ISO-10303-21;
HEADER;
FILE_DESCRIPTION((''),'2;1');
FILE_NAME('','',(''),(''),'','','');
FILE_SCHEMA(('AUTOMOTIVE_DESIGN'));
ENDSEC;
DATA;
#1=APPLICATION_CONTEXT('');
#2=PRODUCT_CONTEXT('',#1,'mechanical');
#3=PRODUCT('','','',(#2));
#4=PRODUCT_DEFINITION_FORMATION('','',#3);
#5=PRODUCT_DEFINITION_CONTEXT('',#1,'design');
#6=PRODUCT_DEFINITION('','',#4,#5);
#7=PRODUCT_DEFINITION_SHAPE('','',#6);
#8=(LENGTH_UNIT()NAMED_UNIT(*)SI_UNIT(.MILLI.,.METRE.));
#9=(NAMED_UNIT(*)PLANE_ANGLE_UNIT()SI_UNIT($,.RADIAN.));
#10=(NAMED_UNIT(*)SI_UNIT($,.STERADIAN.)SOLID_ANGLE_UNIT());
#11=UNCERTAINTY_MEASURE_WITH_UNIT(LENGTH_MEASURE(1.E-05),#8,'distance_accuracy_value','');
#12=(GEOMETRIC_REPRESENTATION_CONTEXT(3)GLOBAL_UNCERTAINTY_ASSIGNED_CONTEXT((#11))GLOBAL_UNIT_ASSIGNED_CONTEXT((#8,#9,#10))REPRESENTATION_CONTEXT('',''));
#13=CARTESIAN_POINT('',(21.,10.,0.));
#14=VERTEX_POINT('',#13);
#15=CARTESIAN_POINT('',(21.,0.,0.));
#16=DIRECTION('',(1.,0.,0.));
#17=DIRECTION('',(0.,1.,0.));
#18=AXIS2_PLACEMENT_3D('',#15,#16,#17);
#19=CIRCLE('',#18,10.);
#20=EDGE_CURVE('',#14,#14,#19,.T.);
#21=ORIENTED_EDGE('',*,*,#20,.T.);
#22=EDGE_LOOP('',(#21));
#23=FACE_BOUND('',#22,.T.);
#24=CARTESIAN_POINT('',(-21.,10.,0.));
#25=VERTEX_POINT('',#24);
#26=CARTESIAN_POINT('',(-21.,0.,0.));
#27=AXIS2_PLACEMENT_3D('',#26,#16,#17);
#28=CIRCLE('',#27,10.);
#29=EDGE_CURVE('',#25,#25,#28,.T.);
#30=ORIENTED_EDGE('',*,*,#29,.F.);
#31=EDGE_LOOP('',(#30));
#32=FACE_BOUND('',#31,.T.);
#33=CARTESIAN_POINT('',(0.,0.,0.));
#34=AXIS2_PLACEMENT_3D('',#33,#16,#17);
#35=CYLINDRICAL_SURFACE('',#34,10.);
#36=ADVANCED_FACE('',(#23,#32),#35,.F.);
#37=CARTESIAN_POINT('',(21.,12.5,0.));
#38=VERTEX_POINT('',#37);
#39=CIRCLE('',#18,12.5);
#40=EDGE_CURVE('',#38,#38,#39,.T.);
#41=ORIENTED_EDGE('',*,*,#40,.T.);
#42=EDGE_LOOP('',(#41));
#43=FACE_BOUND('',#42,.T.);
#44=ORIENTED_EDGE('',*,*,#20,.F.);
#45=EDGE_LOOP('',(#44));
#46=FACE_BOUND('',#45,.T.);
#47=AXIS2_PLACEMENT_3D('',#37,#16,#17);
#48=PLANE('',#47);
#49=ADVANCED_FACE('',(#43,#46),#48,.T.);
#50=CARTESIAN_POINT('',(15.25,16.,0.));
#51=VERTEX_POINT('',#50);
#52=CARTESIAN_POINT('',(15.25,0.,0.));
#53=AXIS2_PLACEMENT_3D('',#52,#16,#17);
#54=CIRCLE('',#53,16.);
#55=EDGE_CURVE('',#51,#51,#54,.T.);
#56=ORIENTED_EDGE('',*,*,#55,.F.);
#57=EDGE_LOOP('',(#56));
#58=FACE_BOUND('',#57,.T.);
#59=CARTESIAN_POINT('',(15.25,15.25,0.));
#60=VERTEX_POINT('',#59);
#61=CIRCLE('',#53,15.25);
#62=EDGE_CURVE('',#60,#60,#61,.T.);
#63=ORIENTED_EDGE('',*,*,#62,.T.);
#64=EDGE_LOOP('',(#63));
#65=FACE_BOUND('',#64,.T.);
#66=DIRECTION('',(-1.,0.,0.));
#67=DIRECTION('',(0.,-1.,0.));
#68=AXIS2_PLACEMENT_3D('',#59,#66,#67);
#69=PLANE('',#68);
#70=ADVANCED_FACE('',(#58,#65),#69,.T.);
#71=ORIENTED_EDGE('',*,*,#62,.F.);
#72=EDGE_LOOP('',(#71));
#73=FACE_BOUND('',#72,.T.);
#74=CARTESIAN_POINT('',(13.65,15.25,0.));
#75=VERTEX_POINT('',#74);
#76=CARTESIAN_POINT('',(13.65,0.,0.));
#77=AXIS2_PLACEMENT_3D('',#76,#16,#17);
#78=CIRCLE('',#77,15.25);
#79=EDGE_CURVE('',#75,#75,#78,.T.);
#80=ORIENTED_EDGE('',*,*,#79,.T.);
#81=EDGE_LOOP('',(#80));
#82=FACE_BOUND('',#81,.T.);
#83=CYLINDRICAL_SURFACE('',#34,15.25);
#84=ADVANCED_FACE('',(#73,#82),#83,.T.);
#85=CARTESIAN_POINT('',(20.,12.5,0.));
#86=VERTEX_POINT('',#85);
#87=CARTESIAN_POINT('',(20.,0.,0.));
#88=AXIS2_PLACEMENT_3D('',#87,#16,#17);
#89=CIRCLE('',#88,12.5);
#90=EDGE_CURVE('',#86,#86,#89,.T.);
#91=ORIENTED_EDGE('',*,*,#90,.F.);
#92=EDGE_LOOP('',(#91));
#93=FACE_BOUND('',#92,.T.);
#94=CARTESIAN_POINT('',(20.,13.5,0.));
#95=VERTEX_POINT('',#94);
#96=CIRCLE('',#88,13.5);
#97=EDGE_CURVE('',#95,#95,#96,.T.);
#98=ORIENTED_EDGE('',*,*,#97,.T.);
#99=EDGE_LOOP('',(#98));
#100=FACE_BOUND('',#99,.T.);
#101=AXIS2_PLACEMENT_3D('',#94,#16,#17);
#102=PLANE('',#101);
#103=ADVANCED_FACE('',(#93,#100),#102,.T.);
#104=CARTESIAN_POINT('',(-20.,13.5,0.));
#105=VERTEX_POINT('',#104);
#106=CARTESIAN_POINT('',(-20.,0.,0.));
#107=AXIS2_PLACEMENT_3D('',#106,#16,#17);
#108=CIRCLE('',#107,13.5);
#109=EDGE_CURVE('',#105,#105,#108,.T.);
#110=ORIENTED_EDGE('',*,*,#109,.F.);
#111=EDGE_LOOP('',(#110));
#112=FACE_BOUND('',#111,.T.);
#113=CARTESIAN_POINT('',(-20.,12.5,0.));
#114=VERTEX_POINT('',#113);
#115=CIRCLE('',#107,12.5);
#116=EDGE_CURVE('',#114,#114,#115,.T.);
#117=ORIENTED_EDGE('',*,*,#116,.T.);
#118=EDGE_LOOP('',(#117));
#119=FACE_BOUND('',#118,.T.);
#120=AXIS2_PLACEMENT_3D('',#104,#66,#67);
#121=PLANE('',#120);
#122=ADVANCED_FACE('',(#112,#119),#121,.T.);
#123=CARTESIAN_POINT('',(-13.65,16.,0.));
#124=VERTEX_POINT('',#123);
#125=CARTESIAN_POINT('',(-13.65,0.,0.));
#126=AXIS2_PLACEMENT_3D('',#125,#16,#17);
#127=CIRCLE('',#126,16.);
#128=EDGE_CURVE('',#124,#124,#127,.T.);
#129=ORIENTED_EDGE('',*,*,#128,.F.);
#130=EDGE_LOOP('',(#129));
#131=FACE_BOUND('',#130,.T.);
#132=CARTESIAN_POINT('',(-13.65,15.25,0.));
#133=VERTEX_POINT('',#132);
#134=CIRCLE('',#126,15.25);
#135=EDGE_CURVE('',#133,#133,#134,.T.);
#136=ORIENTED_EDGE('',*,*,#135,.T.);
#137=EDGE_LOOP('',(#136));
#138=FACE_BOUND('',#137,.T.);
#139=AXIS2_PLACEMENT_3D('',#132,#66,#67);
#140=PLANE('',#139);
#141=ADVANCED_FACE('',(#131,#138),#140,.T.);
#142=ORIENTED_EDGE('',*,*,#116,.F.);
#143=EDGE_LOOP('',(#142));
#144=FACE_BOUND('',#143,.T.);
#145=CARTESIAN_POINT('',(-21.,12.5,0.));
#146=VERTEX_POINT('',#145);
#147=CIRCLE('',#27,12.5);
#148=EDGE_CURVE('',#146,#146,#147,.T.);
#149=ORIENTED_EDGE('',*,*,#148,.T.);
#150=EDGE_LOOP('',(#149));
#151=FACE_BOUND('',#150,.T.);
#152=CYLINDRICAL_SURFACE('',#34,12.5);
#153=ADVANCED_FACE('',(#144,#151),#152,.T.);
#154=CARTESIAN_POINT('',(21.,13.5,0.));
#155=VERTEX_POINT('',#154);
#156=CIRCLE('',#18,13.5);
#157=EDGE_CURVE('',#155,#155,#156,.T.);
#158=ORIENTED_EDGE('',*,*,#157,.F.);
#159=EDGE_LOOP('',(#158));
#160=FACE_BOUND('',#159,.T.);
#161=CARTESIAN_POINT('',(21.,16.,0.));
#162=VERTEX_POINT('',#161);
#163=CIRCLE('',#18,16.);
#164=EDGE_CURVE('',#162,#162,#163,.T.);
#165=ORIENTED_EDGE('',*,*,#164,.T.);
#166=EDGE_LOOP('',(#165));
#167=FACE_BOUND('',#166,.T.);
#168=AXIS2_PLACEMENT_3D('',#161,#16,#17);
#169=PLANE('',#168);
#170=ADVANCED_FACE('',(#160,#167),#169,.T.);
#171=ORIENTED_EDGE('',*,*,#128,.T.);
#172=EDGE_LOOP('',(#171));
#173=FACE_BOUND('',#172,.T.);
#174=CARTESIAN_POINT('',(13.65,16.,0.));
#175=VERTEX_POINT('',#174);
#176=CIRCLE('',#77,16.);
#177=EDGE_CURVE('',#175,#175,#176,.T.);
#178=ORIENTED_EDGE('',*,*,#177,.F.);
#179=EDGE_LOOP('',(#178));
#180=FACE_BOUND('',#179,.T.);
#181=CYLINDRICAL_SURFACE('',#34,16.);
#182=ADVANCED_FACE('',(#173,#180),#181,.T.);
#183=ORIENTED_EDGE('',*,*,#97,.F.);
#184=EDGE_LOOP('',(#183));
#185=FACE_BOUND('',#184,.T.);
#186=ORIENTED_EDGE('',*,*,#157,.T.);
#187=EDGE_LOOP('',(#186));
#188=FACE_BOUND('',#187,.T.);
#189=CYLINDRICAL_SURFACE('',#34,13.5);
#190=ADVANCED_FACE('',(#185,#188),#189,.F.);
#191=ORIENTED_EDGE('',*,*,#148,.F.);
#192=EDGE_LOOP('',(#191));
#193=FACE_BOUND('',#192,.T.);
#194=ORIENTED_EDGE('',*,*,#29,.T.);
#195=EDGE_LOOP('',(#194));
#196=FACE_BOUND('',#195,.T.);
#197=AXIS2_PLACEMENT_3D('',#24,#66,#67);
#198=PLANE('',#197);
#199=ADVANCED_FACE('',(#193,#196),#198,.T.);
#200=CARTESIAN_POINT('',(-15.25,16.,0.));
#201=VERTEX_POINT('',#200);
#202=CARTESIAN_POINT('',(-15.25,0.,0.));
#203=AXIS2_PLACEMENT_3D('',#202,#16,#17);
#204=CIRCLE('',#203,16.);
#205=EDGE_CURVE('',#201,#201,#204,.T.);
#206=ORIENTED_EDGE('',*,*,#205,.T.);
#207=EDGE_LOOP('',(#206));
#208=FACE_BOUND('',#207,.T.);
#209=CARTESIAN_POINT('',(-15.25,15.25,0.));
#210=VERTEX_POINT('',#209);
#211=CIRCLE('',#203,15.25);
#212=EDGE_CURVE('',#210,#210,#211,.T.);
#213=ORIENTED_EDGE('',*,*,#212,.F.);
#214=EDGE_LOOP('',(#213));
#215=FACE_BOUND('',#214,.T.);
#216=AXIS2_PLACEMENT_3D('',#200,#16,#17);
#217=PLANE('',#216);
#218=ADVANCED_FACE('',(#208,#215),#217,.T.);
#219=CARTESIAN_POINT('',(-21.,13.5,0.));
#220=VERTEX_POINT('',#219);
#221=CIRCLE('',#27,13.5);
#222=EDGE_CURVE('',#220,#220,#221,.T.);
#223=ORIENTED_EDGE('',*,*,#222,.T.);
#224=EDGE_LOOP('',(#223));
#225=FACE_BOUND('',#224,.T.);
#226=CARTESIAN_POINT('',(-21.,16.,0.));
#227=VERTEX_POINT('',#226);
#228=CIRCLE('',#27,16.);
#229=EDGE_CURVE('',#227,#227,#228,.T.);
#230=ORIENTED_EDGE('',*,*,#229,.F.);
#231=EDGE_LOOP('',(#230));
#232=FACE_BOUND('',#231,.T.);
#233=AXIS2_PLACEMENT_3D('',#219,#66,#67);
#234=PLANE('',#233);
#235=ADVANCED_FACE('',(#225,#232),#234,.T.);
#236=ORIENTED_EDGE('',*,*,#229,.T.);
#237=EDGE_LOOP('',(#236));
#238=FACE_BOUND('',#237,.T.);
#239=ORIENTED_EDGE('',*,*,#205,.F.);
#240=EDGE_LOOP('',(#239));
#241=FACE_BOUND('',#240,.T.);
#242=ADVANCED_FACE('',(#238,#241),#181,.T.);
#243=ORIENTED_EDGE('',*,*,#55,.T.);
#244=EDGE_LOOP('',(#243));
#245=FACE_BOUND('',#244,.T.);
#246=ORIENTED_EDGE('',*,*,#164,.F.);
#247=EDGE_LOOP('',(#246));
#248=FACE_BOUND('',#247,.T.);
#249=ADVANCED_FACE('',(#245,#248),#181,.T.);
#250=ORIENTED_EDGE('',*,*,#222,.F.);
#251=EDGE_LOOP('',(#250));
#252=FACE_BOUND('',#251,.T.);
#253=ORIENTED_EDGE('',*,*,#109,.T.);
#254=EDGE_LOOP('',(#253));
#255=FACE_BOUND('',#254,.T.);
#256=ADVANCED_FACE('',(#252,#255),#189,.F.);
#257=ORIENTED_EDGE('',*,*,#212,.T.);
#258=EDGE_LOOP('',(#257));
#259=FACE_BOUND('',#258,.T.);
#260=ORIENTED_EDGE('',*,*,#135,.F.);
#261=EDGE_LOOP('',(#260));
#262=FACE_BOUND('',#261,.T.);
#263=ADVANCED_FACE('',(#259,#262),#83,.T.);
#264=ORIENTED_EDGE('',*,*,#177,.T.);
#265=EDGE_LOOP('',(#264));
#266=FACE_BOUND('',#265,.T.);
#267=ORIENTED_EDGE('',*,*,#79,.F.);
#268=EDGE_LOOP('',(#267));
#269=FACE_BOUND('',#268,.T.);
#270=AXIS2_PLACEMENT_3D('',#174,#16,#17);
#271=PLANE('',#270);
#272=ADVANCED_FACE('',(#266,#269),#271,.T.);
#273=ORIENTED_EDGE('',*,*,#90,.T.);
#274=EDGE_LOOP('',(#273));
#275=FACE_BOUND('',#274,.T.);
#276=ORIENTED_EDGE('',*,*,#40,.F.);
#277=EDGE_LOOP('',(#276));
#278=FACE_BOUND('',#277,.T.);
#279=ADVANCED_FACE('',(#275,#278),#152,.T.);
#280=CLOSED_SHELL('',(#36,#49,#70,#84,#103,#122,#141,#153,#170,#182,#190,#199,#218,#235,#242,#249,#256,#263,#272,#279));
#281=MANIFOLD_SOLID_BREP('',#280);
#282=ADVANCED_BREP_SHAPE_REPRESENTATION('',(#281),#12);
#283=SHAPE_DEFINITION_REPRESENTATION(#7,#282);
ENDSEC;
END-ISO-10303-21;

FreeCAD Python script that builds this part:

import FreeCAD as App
import Part
import Sketcher
Q = App.Units.Quantity

doc = App.newDocument("Part")
params = doc.addObject("Spreadsheet::Sheet", "Params")
for row, (alias, value) in enumerate([
    ("sketch1_width", "1 mm"),
    ("sketch1_width2", "42 mm"),
    ("sketch1_width3", "1.6 mm"),
    ("sketch1_width4", "27.3 mm"),
    ("sketch1_height", "2.5 mm"),
    ("revolution_angle", "360 deg"),
], start=1):
    params.set(f"A{row}", alias)
    params.set(f"B{row}", "=" + value)
    params.setAlias(f"B{row}", alias)

body = doc.addObject("PartDesign::Body", "Body")

# Sketch on XY plane
sketch1 = doc.addObject("Sketcher::SketchObject", "Sketch")
body.addObject(sketch1)
sketch1.AttachmentSupport = (doc.XY_Plane, [""])
sketch1.MapMode = "FlatFace"
sketch1.addGeometry(Part.LineSegment(App.Vector(-15.2, 16, 0), App.Vector(-21, 16, 0)), False)
sketch1.addGeometry(Part.LineSegment(App.Vector(-21, 16, 0), App.Vector(-21, 13.5, 0)), False)
sketch1.addGeometry(Part.LineSegment(App.Vector(-21, 13.5, 0), App.Vector(-20, 13.5, 0)), False)
sketch1.addGeometry(Part.LineSegment(App.Vector(-20, 13.5, 0), App.Vector(-20, 12.5, 0)), False)
sketch1.addGeometry(Part.LineSegment(App.Vector(-20, 12.5, 0), App.Vector(-21, 12.5, 0)), False)
sketch1.addGeometry(Part.LineSegment(App.Vector(-21, 12.5, 0), App.Vector(-21, 10, 0)), False)
sketch1.addGeometry(Part.LineSegment(App.Vector(-21, 10, 0), App.Vector(21, 10, 0)), False)
sketch1.addGeometry(Part.LineSegment(App.Vector(21, 10, 0), App.Vector(21, 12.5, 0)), False)
sketch1.addGeometry(Part.LineSegment(App.Vector(21, 12.5, 0), App.Vector(20, 12.5, 0)), False)
sketch1.addGeometry(Part.LineSegment(App.Vector(20, 12.5, 0), App.Vector(20, 13.5, 0)), False)
sketch1.addGeometry(Part.LineSegment(App.Vector(20, 13.5, 0), App.Vector(21, 13.5, 0)), False)
sketch1.addGeometry(Part.LineSegment(App.Vector(21, 13.5, 0), App.Vector(21, 16, 0)), False)
sketch1.addGeometry(Part.LineSegment(App.Vector(21, 16, 0), App.Vector(15.2, 16, 0)), False)
sketch1.addGeometry(Part.LineSegment(App.Vector(15.2, 16, 0), App.Vector(15.2, 15.2, 0)), False)
sketch1.addGeometry(Part.LineSegment(App.Vector(15.2, 15.2, 0), App.Vector(13.7, 15.2, 0)), False)
sketch1.addGeometry(Part.LineSegment(App.Vector(13.7, 15.2, 0), App.Vector(13.7, 16, 0)), False)
sketch1.addGeometry(Part.LineSegment(App.Vector(13.7, 16, 0), App.Vector(-13.7, 16, 0)), False)
sketch1.addGeometry(Part.LineSegment(App.Vector(-13.7, 16, 0), App.Vector(-13.7, 15.2, 0)), False)
sketch1.addGeometry(Part.LineSegment(App.Vector(-13.7, 15.2, 0), App.Vector(-15.2, 15.2, 0)), False)
sketch1.addGeometry(Part.LineSegment(App.Vector(-15.2, 15.2, 0), App.Vector(-15.2, 16, 0)), False)
sketch1.addConstraint(Sketcher.Constraint("Coincident", 0, 2, 1, 1))
sketch1.addConstraint(Sketcher.Constraint("Coincident", 1, 2, 2, 1))
sketch1.addConstraint(Sketcher.Constraint("Coincident", 2, 2, 3, 1))
sketch1.addConstraint(Sketcher.Constraint("Coincident", 3, 2, 4, 1))
sketch1.addConstraint(Sketcher.Constraint("Coincident", 4, 2, 5, 1))
sketch1.addConstraint(Sketcher.Constraint("Coincident", 5, 2, 6, 1))
sketch1.addConstraint(Sketcher.Constraint("Coincident", 6, 2, 7, 1))
sketch1.addConstraint(Sketcher.Constraint("Coincident", 7, 2, 8, 1))
sketch1.addConstraint(Sketcher.Constraint("Coincident", 8, 2, 9, 1))
sketch1.addConstraint(Sketcher.Constraint("Coincident", 9, 2, 10, 1))
sketch1.addConstraint(Sketcher.Constraint("Coincident", 10, 2, 11, 1))
sketch1.addConstraint(Sketcher.Constraint("Coincident", 11, 2, 12, 1))
sketch1.addConstraint(Sketcher.Constraint("Coincident", 12, 2, 13, 1))
sketch1.addConstraint(Sketcher.Constraint("Coincident", 13, 2, 14, 1))
sketch1.addConstraint(Sketcher.Constraint("Coincident", 14, 2, 15, 1))
sketch1.addConstraint(Sketcher.Constraint("Coincident", 15, 2, 16, 1))
sketch1.addConstraint(Sketcher.Constraint("Coincident", 16, 2, 17, 1))
sketch1.addConstraint(Sketcher.Constraint("Coincident", 17, 2, 18, 1))
sketch1.addConstraint(Sketcher.Constraint("Coincident", 18, 2, 19, 1))
sketch1.addConstraint(Sketcher.Constraint("Coincident", 19, 2, 0, 1))
sketch1.addConstraint(Sketcher.Constraint("Horizontal", 0))
sketch1.addConstraint(Sketcher.Constraint("Vertical", 1))
sketch1.addConstraint(Sketcher.Constraint("Horizontal", 2))
sketch1.addConstraint(Sketcher.Constraint("Vertical", 3))
sketch1.addConstraint(Sketcher.Constraint("Horizontal", 4))
sketch1.addConstraint(Sketcher.Constraint("Vertical", 5))
sketch1.addConstraint(Sketcher.Constraint("Horizontal", 6))
sketch1.addConstraint(Sketcher.Constraint("Vertical", 7))
sketch1.addConstraint(Sketcher.Constraint("Horizontal", 8))
sketch1.addConstraint(Sketcher.Constraint("Vertical", 9))
sketch1.addConstraint(Sketcher.Constraint("Horizontal", 10))
sketch1.addConstraint(Sketcher.Constraint("Vertical", 11))
sketch1.addConstraint(Sketcher.Constraint("Horizontal", 12))
sketch1.addConstraint(Sketcher.Constraint("Vertical", 13))
sketch1.addConstraint(Sketcher.Constraint("Horizontal", 14))
sketch1.addConstraint(Sketcher.Constraint("Vertical", 15))
sketch1.addConstraint(Sketcher.Constraint("Horizontal", 16))
sketch1.addConstraint(Sketcher.Constraint("Vertical", 17))
sketch1.addConstraint(Sketcher.Constraint("Horizontal", 18))
sketch1.addConstraint(Sketcher.Constraint("Vertical", 19))
sketch1.addConstraint(Sketcher.Constraint("Symmetric", 4, 2, 7, 2, -2))
sketch1.addConstraint(Sketcher.Constraint("Symmetric", 2, 2, 9, 2, -2))
sketch1.addConstraint(Sketcher.Constraint("Symmetric", 0, 2, 11, 2, -2))
sketch1.addConstraint(Sketcher.Constraint("Symmetric", 14, 2, 17, 2, -2))
sketch1.addConstraint(Sketcher.Constraint("Horizontal", 12, 2, 15, 2))
sketch1.addConstraint(Sketcher.Constraint("Vertical", 1, 2, 4, 2))
sketch1.addConstraint(Sketcher.Constraint("Equal", 0, 12))
sketch1.addConstraint(Sketcher.Constraint("Equal", 10, 3))
sketch1.addConstraint(Sketcher.Constraint("Equal", 1, 5))
sketch1.addConstraint(Sketcher.Constraint("DistanceX", 2, 1, 2, 2, Q("1 mm")))
sketch1.addConstraint(Sketcher.Constraint("DistanceX", 6, 1, 6, 2, Q("42 mm")))
sketch1.addConstraint(Sketcher.Constraint("DistanceX", 14, 2, 14, 1, Q("1.6 mm")))
sketch1.addConstraint(Sketcher.Constraint("DistanceX", 16, 2, 16, 1, Q("27.3 mm")))
sketch1.addConstraint(Sketcher.Constraint("DistanceY", 1, 2, 1, 1, Q("2.5 mm")))
sketch1.addConstraint(Sketcher.Constraint("DistanceY", -1, 1, 0, 2, Q("16 mm")))
sketch1.addConstraint(Sketcher.Constraint("DistanceY", 13, 2, 13, 1, Q("0.75 mm")))
sketch1.setExpression("Constraints[49]", "Params.sketch1_width")
sketch1.setExpression("Constraints[50]", "Params.sketch1_width2")
sketch1.setExpression("Constraints[51]", "Params.sketch1_width3")
sketch1.setExpression("Constraints[52]", "Params.sketch1_width4")
sketch1.setExpression("Constraints[53]", "Params.sketch1_height")
revolution = doc.addObject("PartDesign::Revolution", "Revolution")
body.addObject(revolution)
revolution.Profile = sketch1
revolution.ReferenceAxis = (sketch1, ["H_Axis"])
revolution.setExpression("Angle", "Params.revolution_angle")

doc.recompute()
